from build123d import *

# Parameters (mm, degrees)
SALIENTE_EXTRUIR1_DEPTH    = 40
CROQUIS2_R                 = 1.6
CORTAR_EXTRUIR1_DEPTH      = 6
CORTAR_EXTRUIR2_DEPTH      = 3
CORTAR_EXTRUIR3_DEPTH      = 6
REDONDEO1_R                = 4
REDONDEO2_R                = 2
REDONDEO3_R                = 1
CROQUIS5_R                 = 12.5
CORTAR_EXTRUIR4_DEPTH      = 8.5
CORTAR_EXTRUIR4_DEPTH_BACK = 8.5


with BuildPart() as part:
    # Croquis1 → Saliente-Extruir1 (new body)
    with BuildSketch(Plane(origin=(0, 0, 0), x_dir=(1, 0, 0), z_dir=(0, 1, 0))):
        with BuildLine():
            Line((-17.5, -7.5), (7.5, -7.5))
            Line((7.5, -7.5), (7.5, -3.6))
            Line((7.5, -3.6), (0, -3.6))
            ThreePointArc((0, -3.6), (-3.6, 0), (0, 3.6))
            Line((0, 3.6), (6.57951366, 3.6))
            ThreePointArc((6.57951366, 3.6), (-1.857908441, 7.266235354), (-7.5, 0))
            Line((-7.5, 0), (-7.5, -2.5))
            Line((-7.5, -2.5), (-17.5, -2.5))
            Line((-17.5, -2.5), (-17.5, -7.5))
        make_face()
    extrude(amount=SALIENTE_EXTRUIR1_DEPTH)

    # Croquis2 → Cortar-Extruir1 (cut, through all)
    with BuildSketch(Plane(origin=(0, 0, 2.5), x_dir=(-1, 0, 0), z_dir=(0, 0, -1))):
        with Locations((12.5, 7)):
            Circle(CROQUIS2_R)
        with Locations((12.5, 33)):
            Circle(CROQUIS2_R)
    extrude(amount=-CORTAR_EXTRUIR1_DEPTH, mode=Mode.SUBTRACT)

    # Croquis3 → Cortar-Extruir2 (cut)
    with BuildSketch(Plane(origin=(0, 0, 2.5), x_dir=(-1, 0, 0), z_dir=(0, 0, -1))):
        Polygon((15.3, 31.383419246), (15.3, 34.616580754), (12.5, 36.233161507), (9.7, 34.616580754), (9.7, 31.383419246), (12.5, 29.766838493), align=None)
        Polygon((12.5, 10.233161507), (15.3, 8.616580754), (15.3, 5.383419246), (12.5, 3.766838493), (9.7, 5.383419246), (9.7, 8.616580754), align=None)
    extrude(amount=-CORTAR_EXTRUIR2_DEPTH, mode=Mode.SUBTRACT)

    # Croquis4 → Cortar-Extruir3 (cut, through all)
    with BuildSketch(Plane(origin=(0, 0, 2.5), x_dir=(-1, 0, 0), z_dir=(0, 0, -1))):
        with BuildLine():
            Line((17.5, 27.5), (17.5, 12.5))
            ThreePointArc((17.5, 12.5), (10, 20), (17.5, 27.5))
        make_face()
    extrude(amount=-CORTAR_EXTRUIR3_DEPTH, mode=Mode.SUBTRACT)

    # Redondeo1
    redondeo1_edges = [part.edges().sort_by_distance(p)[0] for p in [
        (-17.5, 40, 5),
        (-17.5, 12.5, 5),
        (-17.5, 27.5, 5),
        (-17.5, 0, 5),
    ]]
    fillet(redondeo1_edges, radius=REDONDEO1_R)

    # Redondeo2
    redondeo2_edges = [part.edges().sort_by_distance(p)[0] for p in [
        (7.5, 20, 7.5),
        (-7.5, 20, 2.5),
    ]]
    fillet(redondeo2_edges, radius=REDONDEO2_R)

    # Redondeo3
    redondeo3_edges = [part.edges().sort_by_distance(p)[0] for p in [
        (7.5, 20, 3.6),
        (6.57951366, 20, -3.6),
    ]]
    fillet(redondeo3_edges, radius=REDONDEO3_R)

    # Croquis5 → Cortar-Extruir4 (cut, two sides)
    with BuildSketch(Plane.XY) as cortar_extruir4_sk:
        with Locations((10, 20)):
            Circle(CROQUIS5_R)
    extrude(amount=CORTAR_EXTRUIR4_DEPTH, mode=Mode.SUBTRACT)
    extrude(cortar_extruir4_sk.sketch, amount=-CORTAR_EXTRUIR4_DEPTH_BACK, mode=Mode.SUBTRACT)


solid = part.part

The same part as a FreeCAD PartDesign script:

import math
import FreeCAD as App
import Part
import Sketcher
from FreeCAD import Vector
Q = App.Units.Quantity


def edges_at(feature, points):
    """Names of the edges that pass closest to the given points."""
    edges = feature.Shape.Edges
    near = lambda p: min(range(len(edges)), key=lambda i: edges[i].distToShape(Part.Vertex(*p))[0])
    return sorted({f"Edge{near(p) + 1}" for p in points})

doc = App.newDocument("Part")
params = doc.addObject("Spreadsheet::Sheet", "Params")
for row, (alias, value) in enumerate([
    ("sketch1_radius", "3.6 mm"),
    ("sketch1_radius2", "7.5 mm"),
    ("sketch1_width", "25 mm"),
    ("sketch1_width2", "10 mm"),
    ("sketch1_height", "5 mm"),
    ("pad1_length", "40 mm"),
    ("sketch2_diameter", "3.2 mm"),
    ("pocket2_length", "3 mm"),
    ("sketch4_radius", "7.5 mm"),
    ("fillet_radius", "4 mm"),
    ("fillet2_radius", "2 mm"),
    ("fillet3_radius", "1 mm"),
    ("sketch5_diameter", "25 mm"),
], start=1):
    params.set(f"A{row}", alias)
    params.set(f"B{row}", "=" + value)
    params.setAlias(f"B{row}", alias)

body = doc.addObject("PartDesign::Body", "Body")

# Sketch on XZ plane
sketch1 = body.newObject("Sketcher::SketchObject", "Sketch")
sketch1.AttachmentSupport = (doc.getObject("XZ_Plane"), [""])
sketch1.MapMode = "FlatFace"
sketch1.addGeometry([
    Part.LineSegment(Vector(-17.5, 7.5, 0), Vector(7.5, 7.5, 0)),  # 0
    Part.LineSegment(Vector(7.5, 7.5, 0), Vector(7.5, 3.6, 0)),  # 1
    Part.LineSegment(Vector(7.5, 3.6, 0), Vector(0, 3.6, 0)),  # 2
    Part.ArcOfCircle(Part.Circle(Vector(0, 0, 0), Vector(0, 0, 1), 3.6), math.radians(90), math.radians(270)),  # 3
    Part.LineSegment(Vector(0, -3.6, 0), Vector(6.579514, -3.6, 0)),  # 4
    Part.ArcOfCircle(Part.Circle(Vector(0, 0, 0), Vector(0, 0, 1), 7.5), math.radians(-180), math.radians(-28.685402)),  # 5
    Part.LineSegment(Vector(-7.5, 0, 0), Vector(-7.5, 2.5, 0)),  # 6
    Part.LineSegment(Vector(-7.5, 2.5, 0), Vector(-17.5, 2.5, 0)),  # 7
    Part.LineSegment(Vector(-17.5, 2.5, 0), Vector(-17.5, 7.5, 0)),  # 8
], False)
sketch1.addConstraint([
    Sketcher.Constraint("Coincident", 0, 2, 1, 1),
    Sketcher.Constraint("Coincident", 1, 2, 2, 1),
    Sketcher.Constraint("Tangent", 2, 2, 3, 1),
    Sketcher.Constraint("Tangent", 3, 2, 4, 1),
    Sketcher.Constraint("Coincident", 4, 2, 5, 2),
    Sketcher.Constraint("Tangent", 5, 1, 6, 1),
    Sketcher.Constraint("Coincident", 6, 2, 7, 1),
    Sketcher.Constraint("Coincident", 7, 2, 8, 1),
    Sketcher.Constraint("Coincident", 8, 2, 0, 1),
    Sketcher.Constraint("Horizontal", 0),
    Sketcher.Constraint("Vertical", 1),
    Sketcher.Constraint("Horizontal", 2),
    Sketcher.Constraint("Horizontal", 4),
    Sketcher.Constraint("Vertical", 6),
    Sketcher.Constraint("Horizontal", 7),
    Sketcher.Constraint("Vertical", 8),
    Sketcher.Constraint("Coincident", 3, 3, -1, 1),
    Sketcher.Constraint("Coincident", 5, 3, -1, 1),
    Sketcher.Constraint("Radius", 3, 3.6),
    Sketcher.Constraint("Radius", 5, 7.5),
    Sketcher.Constraint("DistanceX", 0, 1, 0, 2, 25.0),
    Sketcher.Constraint("DistanceX", 7, 2, 7, 1, 10.0),
    Sketcher.Constraint("DistanceY", 8, 1, 8, 2, 5.0),
    Sketcher.Constraint("DistanceY", 1, 2, 1, 1, 3.9),
])
sketch1.setExpression("Constraints[18]", "Params.sketch1_radius")
sketch1.setExpression("Constraints[19]", "Params.sketch1_radius2")
sketch1.setExpression("Constraints[20]", "Params.sketch1_width")
sketch1.setExpression("Constraints[21]", "Params.sketch1_width2")
sketch1.setExpression("Constraints[22]", "Params.sketch1_height")
pad1 = body.newObject("PartDesign::Pad", "Pad")
pad1.Profile = sketch1
pad1.setExpression("Length", "Params.pad1_length")
pad1.Reversed = True

# Sketch on XY plane
sketch2 = body.newObject("Sketcher::SketchObject", "Sketch001")
sketch2.AttachmentSupport = (doc.getObject("XY_Plane"), [""])
sketch2.MapMode = "FlatFace"
sketch2.AttachmentOffset = App.Placement(Vector(0, 0, 2.5), App.Rotation())
sketch2.addGeometry([
    Part.Circle(Vector(-12.5, 7, 0), Vector(0, 0, 1), 1.6),
    Part.Circle(Vector(-12.5, 33, 0), Vector(0, 0, 1), 1.6),
], False)
sketch2.addConstraint([
    Sketcher.Constraint("Equal", 0, 1),
    Sketcher.Constraint("Vertical", 0, 3, 1, 3),
    Sketcher.Constraint("Diameter", 0, 3.2),
    Sketcher.Constraint("DistanceY", -1, 1, 0, 3, 7.0),
    Sketcher.Constraint("DistanceY", -1, 1, 1, 3, 33.0),
    Sketcher.Constraint("DistanceX", 0, 3, -1, 1, 12.5),
])
sketch2.setExpression("Constraints[2]", "Params.sketch2_diameter")
pocket1 = body.newObject("PartDesign::Pocket", "Pocket")
pocket1.Profile = sketch2
pocket1.Type = "ThroughAll"
pocket1.Reversed = True

# Sketch on XY plane
sketch3 = body.newObject("Sketcher::SketchObject", "Sketch002")
sketch3.AttachmentSupport = (doc.getObject("XY_Plane"), [""])
sketch3.MapMode = "FlatFace"
sketch3.AttachmentOffset = App.Placement(Vector(0, 0, 2.5), App.Rotation())
sketch3.addGeometry([
    Part.LineSegment(Vector(-15.3, 31.383419, 0), Vector(-15.3, 34.616581, 0)),  # 0
    Part.LineSegment(Vector(-15.3, 34.616581, 0), Vector(-12.5, 36.233162, 0)),  # 1
    Part.LineSegment(Vector(-12.5, 36.233162, 0), Vector(-9.7, 34.616581, 0)),  # 2
    Part.LineSegment(Vector(-9.7, 34.616581, 0), Vector(-9.7, 31.383419, 0)),  # 3
    Part.LineSegment(Vector(-9.7, 31.383419, 0), Vector(-12.5, 29.766838, 0)),  # 4
    Part.LineSegment(Vector(-12.5, 29.766838, 0), Vector(-15.3, 31.383419, 0)),  # 5
    Part.LineSegment(Vector(-15.3, 8.616581, 0), Vector(-12.5, 10.233162, 0)),  # 6
    Part.LineSegment(Vector(-12.5, 10.233162, 0), Vector(-9.7, 8.616581, 0)),  # 7
    Part.LineSegment(Vector(-9.7, 8.616581, 0), Vector(-9.7, 5.383419, 0)),  # 8
    Part.LineSegment(Vector(-9.7, 5.383419, 0), Vector(-12.5, 3.766838, 0)),  # 9
    Part.LineSegment(Vector(-12.5, 3.766838, 0), Vector(-15.3, 5.383419, 0)),  # 10
    Part.LineSegment(Vector(-15.3, 5.383419, 0), Vector(-15.3, 8.616581, 0)),  # 11
], False)
sketch3.addConstraint([
    Sketcher.Constraint("Coincident", 0, 2, 1, 1),
    Sketcher.Constraint("Coincident", 1, 2, 2, 1),
    Sketcher.Constraint("Coincident", 2, 2, 3, 1),
    Sketcher.Constraint("Coincident", 3, 2, 4, 1),
    Sketcher.Constraint("Coincident", 4, 2, 5, 1),
    Sketcher.Constraint("Coincident", 5, 2, 0, 1),
    Sketcher.Constraint("Coincident", 6, 2, 7, 1),
    Sketcher.Constraint("Coincident", 7, 2, 8, 1),
    Sketcher.Constraint("Coincident", 8, 2, 9, 1),
    Sketcher.Constraint("Coincident", 9, 2, 10, 1),
    Sketcher.Constraint("Coincident", 10, 2, 11, 1),
    Sketcher.Constraint("Coincident", 11, 2, 6, 1),
    Sketcher.Constraint("Vertical", 0),
    Sketcher.Constraint("Vertical", 3),
    Sketcher.Constraint("Vertical", 8),
    Sketcher.Constraint("Vertical", 11),
    Sketcher.Constraint("Parallel", 1, 4),
    Sketcher.Constraint("Parallel", 2, 5),
    Sketcher.Constraint("Parallel", 4, 6),
    Sketcher.Constraint("Parallel", 5, 7),
    Sketcher.Constraint("Parallel", 6, 9),
    Sketcher.Constraint("Parallel", 7, 10),
    Sketcher.Constraint("Horizontal", 0, 2, 2, 2),
    Sketcher.Constraint("Horizontal", 3, 2, 5, 2),
    Sketcher.Constraint("Horizontal", 8, 2, 10, 2),
    Sketcher.Constraint("Horizontal", 7, 2, 11, 2),
    Sketcher.Constraint("Vertical", 1, 2, 4, 2),
    Sketcher.Constraint("Vertical", 4, 2, 6, 2),
    Sketcher.Constraint("Vertical", 3, 2, 7, 2),
    Sketcher.Constraint("Equal", 3, 8),
    Sketcher.Constraint("Angle", 1, Q("30 deg")),
    Sketcher.Constraint("DistanceY", 7, 2, 2, 2, 26.0),
    Sketcher.Constraint("DistanceX", 0, 2, -1, 1, 15.3),
    Sketcher.Constraint("DistanceX", 1, 2, -1, 1, 12.5),
    Sketcher.Constraint("DistanceY", 0, 1, 0, 2, 3.233162),
    Sketcher.Constraint("DistanceY", -1, 1, 0, 2, 34.616581),
])
pocket2 = body.newObject("PartDesign::Pocket", "Pocket001")
pocket2.Profile = sketch3
pocket2.setExpression("Length", "Params.pocket2_length")
pocket2.Reversed = True

# Sketch on XY plane
sketch4 = body.newObject("Sketcher::SketchObject", "Sketch003")
sketch4.AttachmentSupport = (doc.getObject("XY_Plane"), [""])
sketch4.MapMode = "FlatFace"
sketch4.AttachmentOffset = App.Placement(Vector(0, 0, 2.5), App.Rotation())
sketch4.addGeometry([
    Part.LineSegment(Vector(-17.5, 12.5, 0), Vector(-17.5, 27.5, 0)),
    Part.ArcOfCircle(Part.Circle(Vector(-17.5, 20, 0), Vector(0, 0, 1), 7.5), math.radians(-90), math.radians(90)),
], False)
sketch4.addConstraint([
    Sketcher.Constraint("Coincident", 0, 1, 1, 1),
    Sketcher.Constraint("Coincident", 1, 2, 0, 2),
    Sketcher.Constraint("Vertical", 0),
    Sketcher.Constraint("Vertical", 1, 3, 0, 1),
    Sketcher.Constraint("Radius", 1, 7.5),
    Sketcher.Constraint("DistanceY", -1, 1, 1, 3, 20.0),
    Sketcher.Constraint("DistanceX", 1, 3, -1, 1, 17.5),
])
sketch4.setExpression("Constraints[4]", "Params.sketch4_radius")
pocket3 = body.newObject("PartDesign::Pocket", "Pocket002")
pocket3.Profile = sketch4
pocket3.Type = "ThroughAll"
pocket3.Reversed = True
doc.recompute()

fillet = body.newObject("PartDesign::Fillet", "Fillet")
fillet.Base = (pocket3, edges_at(pocket3, [
    (-17.5, 40, 5),
    (-17.5, 12.5, 5),
    (-17.5, 27.5, 5),
    (-17.5, 0, 5),
]))
fillet.setExpression("Radius", "Params.fillet_radius")
doc.recompute()

fillet2 = body.newObject("PartDesign::Fillet", "Fillet001")
fillet2.Base = (fillet, edges_at(fillet, [(7.5, 20, 7.5), (-7.5, 20, 2.5)]))
fillet2.setExpression("Radius", "Params.fillet2_radius")
doc.recompute()

fillet3 = body.newObject("PartDesign::Fillet", "Fillet002")
fillet3.Base = (fillet2, edges_at(fillet2, [(7.5, 20, 3.6), (6.58, 20, -3.6)]))
fillet3.setExpression("Radius", "Params.fillet3_radius")

# Sketch on XY plane
sketch5 = body.newObject("Sketcher::SketchObject", "Sketch004")
sketch5.AttachmentSupport = (doc.getObject("XY_Plane"), [""])
sketch5.MapMode = "FlatFace"
sketch5.addGeometry(Part.Circle(Vector(10, 20, 0), Vector(0, 0, 1), 12.5), False)
sketch5.addConstraint([
    Sketcher.Constraint("Diameter", 0, 25.0),
    Sketcher.Constraint("DistanceX", -1, 1, 0, 3, 10.0),
    Sketcher.Constraint("DistanceY", -1, 1, 0, 3, 20.0),
])
sketch5.setExpression("Constraints[0]", "Params.sketch5_diameter")
pocket4 = body.newObject("PartDesign::Pocket", "Pocket003")
pocket4.Profile = sketch5
pocket4.Type = "ThroughAll"
pocket4.Midplane = True

doc.recompute()
